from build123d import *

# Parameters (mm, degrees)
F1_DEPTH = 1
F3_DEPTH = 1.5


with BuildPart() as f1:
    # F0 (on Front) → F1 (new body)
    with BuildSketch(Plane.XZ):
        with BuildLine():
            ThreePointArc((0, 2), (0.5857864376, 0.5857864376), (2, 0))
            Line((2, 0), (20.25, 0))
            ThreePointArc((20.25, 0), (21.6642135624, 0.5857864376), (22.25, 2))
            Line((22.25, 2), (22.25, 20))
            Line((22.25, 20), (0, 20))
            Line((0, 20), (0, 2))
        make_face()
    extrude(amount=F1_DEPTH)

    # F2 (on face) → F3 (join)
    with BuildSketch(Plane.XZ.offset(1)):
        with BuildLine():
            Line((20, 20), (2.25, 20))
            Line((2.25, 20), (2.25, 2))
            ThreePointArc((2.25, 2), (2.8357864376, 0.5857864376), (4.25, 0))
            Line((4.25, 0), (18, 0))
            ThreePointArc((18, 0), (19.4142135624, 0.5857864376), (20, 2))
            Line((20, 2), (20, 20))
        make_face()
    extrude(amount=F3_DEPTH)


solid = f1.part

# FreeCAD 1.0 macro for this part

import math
import FreeCAD as App
import Part
import Sketcher
from FreeCAD import Vector

doc = App.newDocument("Part")
body = doc.addObject("PartDesign::Body", "Body")

sketch1 = body.newObject("Sketcher::SketchObject", "Sketch")
sketch1.AttachmentSupport = (doc.getObject("XZ_Plane"), [""])
sketch1.MapMode = "FlatFace"
sketch1.addGeometry([
    Part.ArcOfCircle(Part.Circle(Vector(2, 2, 0), Vector(0, 0, 1), 2), math.radians(180), math.radians(270)),
    Part.LineSegment(Vector(2, 0, 0), Vector(20.25, 0, 0)),
    Part.ArcOfCircle(Part.Circle(Vector(20.25, 2, 0), Vector(0, 0, 1), 2), math.radians(-90), math.radians(0)),
    Part.LineSegment(Vector(22.25, 2, 0), Vector(22.25, 20, 0)),
    Part.LineSegment(Vector(22.25, 20, 0), Vector(0, 20, 0)),
    Part.LineSegment(Vector(0, 20, 0), Vector(0, 2, 0)),
], False)
sketch1.addConstraint([
    Sketcher.Constraint("Tangent", 0, 2, 1, 1),
    Sketcher.Constraint("Tangent", 1, 2, 2, 1),
    Sketcher.Constraint("Tangent", 2, 2, 3, 1),
    Sketcher.Constraint("Coincident", 3, 2, 4, 1),
    Sketcher.Constraint("Coincident", 4, 2, 5, 1),
    Sketcher.Constraint("Tangent", 5, 2, 0, 1),
    Sketcher.Constraint("Horizontal", 1),
    Sketcher.Constraint("Vertical", 3),
    Sketcher.Constraint("Horizontal", 4),
    Sketcher.Constraint("Vertical", 5),
    Sketcher.Constraint("Equal", 0, 2),
    Sketcher.Constraint("PointOnObject", 0, 2, -1),
    Sketcher.Constraint("PointOnObject", 4, 2, -2),
    Sketcher.Constraint("Radius", 0, 2.0),
    Sketcher.Constraint("DistanceY", 3, 1, 3, 2, 18.0),
    Sketcher.Constraint("DistanceX", 1, 1, 1, 2, 18.25),
])
pad1 = body.newObject("PartDesign::Pad", "Pad")
pad1.Profile = sketch1
pad1.Length = 1

sketch2 = body.newObject("Sketcher::SketchObject", "Sketch001")
sketch2.AttachmentSupport = (doc.getObject("XZ_Plane"), [""])
sketch2.MapMode = "FlatFace"
sketch2.AttachmentOffset = App.Placement(Vector(0, 0, 1), App.Rotation())
sketch2.addGeometry([
    Part.LineSegment(Vector(20, 20, 0), Vector(2.25, 20, 0)),
    Part.LineSegment(Vector(2.25, 20, 0), Vector(2.25, 2, 0)),
    Part.ArcOfCircle(Part.Circle(Vector(4.25, 2, 0), Vector(0, 0, 1), 2), math.radians(180), math.radians(270)),
    Part.LineSegment(Vector(4.25, 0, 0), Vector(18, 0, 0)),
    Part.ArcOfCircle(Part.Circle(Vector(18, 2, 0), Vector(0, 0, 1), 2), math.radians(-90), math.radians(0)),
    Part.LineSegment(Vector(20, 2, 0), Vector(20, 20, 0)),
], False)
sketch2.addConstraint([
    Sketcher.Constraint("Coincident", 0, 2, 1, 1),
    Sketcher.Constraint("Tangent", 1, 2, 2, 1),
    Sketcher.Constraint("Tangent", 2, 2, 3, 1),
    Sketcher.Constraint("Tangent", 3, 2, 4, 1),
    Sketcher.Constraint("Tangent", 4, 2, 5, 1),
    Sketcher.Constraint("Coincident", 5, 2, 0, 1),
    Sketcher.Constraint("Horizontal", 0),
    Sketcher.Constraint("Vertical", 1),
    Sketcher.Constraint("Horizontal", 3),
    Sketcher.Constraint("Vertical", 5),
    Sketcher.Constraint("Equal", 2, 4),
    Sketcher.Constraint("PointOnObject", 2, 2, -1),
    Sketcher.Constraint("Radius", 2, 2.0),
    Sketcher.Constraint("DistanceY", 1, 2, 1, 1, 18.0),
    Sketcher.Constraint("DistanceX", -1, 1, 4, 3, 18.0),
    Sketcher.Constraint("DistanceX", 0, 2, 0, 1, 17.75),
])
pad2 = body.newObject("PartDesign::Pad", "Pad001")
pad2.Profile = sketch2
pad2.Length = 1.5

doc.recompute()
